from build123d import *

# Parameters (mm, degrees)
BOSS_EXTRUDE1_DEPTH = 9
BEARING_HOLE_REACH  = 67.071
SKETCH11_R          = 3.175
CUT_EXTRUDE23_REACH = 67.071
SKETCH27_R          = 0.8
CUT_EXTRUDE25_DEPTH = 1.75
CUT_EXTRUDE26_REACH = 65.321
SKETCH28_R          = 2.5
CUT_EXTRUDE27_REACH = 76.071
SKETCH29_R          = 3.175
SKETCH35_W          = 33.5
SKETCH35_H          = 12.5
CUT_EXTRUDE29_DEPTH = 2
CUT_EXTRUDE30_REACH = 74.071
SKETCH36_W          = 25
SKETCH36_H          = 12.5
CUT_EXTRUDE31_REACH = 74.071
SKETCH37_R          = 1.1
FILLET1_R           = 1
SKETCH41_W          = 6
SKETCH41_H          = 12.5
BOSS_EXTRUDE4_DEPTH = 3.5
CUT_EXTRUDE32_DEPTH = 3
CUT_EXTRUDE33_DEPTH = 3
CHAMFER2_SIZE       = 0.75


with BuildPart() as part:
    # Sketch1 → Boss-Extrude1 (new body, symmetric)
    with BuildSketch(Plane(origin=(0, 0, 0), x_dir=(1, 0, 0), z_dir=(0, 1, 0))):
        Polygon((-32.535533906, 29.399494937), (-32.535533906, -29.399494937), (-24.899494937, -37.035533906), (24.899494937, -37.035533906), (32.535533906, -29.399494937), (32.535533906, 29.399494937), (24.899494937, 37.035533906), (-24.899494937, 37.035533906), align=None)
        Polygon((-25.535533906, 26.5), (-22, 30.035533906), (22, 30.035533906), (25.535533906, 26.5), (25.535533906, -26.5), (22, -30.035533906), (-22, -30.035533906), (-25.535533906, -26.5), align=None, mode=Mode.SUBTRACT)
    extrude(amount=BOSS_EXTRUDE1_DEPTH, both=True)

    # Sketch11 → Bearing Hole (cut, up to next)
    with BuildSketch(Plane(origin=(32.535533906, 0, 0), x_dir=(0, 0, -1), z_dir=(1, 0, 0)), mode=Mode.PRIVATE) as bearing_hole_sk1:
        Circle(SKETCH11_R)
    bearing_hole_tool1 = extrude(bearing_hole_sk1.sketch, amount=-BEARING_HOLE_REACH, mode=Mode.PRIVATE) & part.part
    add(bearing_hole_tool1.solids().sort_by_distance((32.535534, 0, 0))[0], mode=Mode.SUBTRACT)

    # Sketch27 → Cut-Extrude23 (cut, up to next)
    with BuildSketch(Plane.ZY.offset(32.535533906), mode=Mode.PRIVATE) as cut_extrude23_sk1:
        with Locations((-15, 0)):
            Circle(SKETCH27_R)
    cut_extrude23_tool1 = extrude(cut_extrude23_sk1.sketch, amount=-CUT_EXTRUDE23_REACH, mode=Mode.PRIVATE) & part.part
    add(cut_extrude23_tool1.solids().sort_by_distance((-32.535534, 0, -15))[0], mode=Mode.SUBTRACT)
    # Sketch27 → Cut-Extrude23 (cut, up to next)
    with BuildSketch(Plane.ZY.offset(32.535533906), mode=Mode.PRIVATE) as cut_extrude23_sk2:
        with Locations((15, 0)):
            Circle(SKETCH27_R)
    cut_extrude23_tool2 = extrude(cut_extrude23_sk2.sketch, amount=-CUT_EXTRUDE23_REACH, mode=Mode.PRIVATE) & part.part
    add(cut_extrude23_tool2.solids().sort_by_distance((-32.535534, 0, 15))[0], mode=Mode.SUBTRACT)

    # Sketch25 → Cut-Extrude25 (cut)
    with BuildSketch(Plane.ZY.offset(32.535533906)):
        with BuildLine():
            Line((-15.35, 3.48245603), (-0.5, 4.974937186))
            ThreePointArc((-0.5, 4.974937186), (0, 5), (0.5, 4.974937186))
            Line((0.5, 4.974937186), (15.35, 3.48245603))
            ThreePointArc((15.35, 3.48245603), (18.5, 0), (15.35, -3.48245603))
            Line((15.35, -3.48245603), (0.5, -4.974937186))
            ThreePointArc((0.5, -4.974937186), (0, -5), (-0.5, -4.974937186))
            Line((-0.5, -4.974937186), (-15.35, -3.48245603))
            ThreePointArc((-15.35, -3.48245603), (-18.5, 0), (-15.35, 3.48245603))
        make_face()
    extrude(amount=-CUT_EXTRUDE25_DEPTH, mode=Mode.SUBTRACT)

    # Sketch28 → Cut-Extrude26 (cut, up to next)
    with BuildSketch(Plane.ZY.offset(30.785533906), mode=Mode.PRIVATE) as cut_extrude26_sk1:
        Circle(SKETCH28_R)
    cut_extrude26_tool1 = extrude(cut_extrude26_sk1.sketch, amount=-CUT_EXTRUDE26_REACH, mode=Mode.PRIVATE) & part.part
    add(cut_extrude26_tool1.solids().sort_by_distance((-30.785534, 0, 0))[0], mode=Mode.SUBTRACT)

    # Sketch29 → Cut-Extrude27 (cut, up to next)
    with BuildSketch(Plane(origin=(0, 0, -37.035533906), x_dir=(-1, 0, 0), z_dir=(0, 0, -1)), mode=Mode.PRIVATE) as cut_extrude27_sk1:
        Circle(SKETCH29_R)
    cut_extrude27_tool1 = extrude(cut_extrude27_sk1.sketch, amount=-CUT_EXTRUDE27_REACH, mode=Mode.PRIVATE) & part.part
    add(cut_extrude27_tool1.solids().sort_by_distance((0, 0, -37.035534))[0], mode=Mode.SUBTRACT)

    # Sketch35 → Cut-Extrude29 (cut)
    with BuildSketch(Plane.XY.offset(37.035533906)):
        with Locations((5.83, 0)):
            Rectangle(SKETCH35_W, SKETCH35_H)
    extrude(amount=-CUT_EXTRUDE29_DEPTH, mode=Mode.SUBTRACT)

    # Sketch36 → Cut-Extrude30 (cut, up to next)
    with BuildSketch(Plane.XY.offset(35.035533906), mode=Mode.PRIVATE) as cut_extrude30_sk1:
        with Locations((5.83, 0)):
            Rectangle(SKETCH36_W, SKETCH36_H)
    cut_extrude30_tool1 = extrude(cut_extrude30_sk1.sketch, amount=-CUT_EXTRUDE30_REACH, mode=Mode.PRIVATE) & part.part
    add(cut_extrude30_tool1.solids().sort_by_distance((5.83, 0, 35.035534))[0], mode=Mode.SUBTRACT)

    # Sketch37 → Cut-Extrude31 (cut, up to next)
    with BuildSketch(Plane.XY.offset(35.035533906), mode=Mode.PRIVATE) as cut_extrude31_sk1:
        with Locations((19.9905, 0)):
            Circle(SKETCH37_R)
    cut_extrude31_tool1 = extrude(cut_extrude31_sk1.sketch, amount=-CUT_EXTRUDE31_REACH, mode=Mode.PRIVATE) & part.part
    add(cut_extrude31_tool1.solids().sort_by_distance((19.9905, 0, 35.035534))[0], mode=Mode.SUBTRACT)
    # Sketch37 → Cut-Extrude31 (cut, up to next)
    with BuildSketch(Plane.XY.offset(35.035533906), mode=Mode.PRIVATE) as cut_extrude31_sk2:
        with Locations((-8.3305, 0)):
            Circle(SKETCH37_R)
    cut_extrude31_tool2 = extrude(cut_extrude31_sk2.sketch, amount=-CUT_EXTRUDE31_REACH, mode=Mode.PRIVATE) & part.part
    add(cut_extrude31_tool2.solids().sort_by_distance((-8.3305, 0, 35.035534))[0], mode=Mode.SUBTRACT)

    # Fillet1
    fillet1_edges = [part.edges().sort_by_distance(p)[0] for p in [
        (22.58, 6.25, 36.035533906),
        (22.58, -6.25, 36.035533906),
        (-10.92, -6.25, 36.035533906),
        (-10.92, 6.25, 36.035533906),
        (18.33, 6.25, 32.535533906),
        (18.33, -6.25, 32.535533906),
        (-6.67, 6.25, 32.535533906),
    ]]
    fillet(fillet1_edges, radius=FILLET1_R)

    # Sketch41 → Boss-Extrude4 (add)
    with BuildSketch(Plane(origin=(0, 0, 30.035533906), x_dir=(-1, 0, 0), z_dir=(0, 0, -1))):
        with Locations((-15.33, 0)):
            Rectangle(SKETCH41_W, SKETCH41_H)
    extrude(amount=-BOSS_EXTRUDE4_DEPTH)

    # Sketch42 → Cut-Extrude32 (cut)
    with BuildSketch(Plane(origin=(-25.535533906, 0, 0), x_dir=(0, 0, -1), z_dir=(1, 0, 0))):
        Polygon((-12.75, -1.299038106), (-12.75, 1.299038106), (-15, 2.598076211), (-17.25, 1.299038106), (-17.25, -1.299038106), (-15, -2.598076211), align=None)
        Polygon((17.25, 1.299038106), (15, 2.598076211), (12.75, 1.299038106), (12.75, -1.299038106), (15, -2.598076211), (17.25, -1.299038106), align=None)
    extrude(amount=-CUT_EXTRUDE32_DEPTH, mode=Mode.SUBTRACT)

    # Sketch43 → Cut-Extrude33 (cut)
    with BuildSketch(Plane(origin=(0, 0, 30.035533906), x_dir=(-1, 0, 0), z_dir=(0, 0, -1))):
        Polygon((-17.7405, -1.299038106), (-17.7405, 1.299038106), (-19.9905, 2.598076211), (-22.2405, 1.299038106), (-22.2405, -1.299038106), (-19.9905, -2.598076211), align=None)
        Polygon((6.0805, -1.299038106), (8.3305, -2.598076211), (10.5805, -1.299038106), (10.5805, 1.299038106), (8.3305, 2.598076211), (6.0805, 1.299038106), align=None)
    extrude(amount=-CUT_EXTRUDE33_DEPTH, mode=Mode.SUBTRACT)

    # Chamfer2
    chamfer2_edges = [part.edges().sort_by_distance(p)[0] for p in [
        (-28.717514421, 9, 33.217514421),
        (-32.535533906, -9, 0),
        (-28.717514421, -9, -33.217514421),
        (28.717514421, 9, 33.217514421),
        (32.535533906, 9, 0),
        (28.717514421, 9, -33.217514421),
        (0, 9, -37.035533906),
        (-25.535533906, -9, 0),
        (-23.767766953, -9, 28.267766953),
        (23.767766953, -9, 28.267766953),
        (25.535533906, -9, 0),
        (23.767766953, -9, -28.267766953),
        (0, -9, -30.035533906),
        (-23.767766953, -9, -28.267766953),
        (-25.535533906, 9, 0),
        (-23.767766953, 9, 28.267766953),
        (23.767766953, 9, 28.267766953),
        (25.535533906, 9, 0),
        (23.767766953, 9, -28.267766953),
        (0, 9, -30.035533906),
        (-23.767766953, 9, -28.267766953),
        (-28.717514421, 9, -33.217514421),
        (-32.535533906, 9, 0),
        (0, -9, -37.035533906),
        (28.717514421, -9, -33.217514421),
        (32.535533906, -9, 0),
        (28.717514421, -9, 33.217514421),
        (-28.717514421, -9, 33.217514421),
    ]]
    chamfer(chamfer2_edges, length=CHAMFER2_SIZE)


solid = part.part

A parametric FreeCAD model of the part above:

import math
import FreeCAD as App
import Part
import Sketcher

V = App.Vector
Q = App.Units.Quantity


def edges_at(feature, points):
    """Names of the edges that pass closest to the given points."""
    edges = feature.Shape.Edges
    near = lambda p: min(range(len(edges)), key=lambda i: edges[i].distToShape(Part.Vertex(*p))[0])
    return sorted({f"Edge{near(p) + 1}" for p in points})


def add_polygon(sketch, points):
    """Adds a closed chain of lines whose ends are joined by coincident constraints."""
    first, n = sketch.GeometryCount, len(points)
    for a, b in zip(points, points[1:] + points[:1]):
        sketch.addGeometry(Part.LineSegment(App.Vector(*a, 0), App.Vector(*b, 0)), False)
    for i in range(n):
        sketch.addConstraint(Sketcher.Constraint("Coincident", first + i, 2, first + (i + 1) % n, 1))

doc = App.newDocument("Part")
body = doc.addObject("PartDesign::Body", "Body")

# Sketch on XZ plane
sketch1 = body.newObject("Sketcher::SketchObject", "Sketch")
sketch1.AttachmentSupport = (doc.getObject("XZ_Plane"), [""])
sketch1.MapMode = "FlatFace"
add_polygon(sketch1, [(-33, -29), (-33, 29), (-25, 37), (25, 37), (33, 29), (33, -29), (25, -37), (-25, -37)])  # lines 0-7
add_polygon(sketch1, [(-26, 26), (-26, -26), (-22, -30), (22, -30), (26, -26), (26, 26), (22, 30), (-22, 30)])  # lines 8-15
sketch1.addConstraint([
    Sketcher.Constraint("Vertical", 0),
    Sketcher.Constraint("Horizontal", 2),
    Sketcher.Constraint("Vertical", 4),
    Sketcher.Constraint("Horizontal", 6),
    Sketcher.Constraint("Vertical", 8),
    Sketcher.Constraint("Horizontal", 10),
    Sketcher.Constraint("Vertical", 12),
    Sketcher.Constraint("Horizontal", 14),
    Sketcher.Constraint("Symmetric", 0, 2, 4, 2, -1, 1),
    Sketcher.Constraint("Symmetric", 1, 2, 5, 2, -1, 1),
    Sketcher.Constraint("Symmetric", 8, 2, 12, 2, -1, 1),
    Sketcher.Constraint("Symmetric", 9, 2, 13, 2, -1, 1),
    Sketcher.Constraint("Perpendicular", 1, 3),
    Sketcher.Constraint("Perpendicular", 5, 7),
    Sketcher.Constraint("Parallel", 7, 9),
    Sketcher.Constraint("Perpendicular", 9, 11),
    Sketcher.Constraint("Perpendicular", 13, 15),
    Sketcher.Constraint("Horizontal", 0, 2, 3, 2),
    Sketcher.Constraint("Horizontal", 4, 2, 7, 2),
    Sketcher.Constraint("Horizontal", 8, 2, 11, 2),
    Sketcher.Constraint("Horizontal", 12, 2, 15, 2),
    Sketcher.Constraint("Vertical", 2, 2, 5, 2),
    Sketcher.Constraint("DistanceX", 10, 1, 10, 2, 44.0),
    Sketcher.Constraint("DistanceY", 8, 2, 8, 1, 53.0),
    Sketcher.Constraint("Distance", 9, 5.0),
    Sketcher.Constraint("DistanceX", 7, 2, 8, 2, 7.0),
    Sketcher.Constraint("DistanceY", 6, 2, 9, 2, 7.0),
    Sketcher.Constraint("DistanceX", 2, 1, 2, 2, 49.79899),
])
pad1 = body.newObject("PartDesign::Pad", "Pad")
pad1.Profile = sketch1
pad1.Length = 18
pad1.Midplane = True

# Sketch on YZ plane
sketch2 = body.newObject("Sketcher::SketchObject", "Sketch001")
sketch2.AttachmentSupport = (doc.getObject("YZ_Plane"), [""])
sketch2.MapMode = "FlatFace"
sketch2.AttachmentOffset = App.Placement(V(0, 0, 32.535534), App.Rotation())
sketch2.addGeometry(Part.Circle(V(0, 0, 0), V(0, 0, 1), 3.2), False)
sketch2.addConstraint([
    Sketcher.Constraint("Coincident", 0, 3, -1, 1),
    Sketcher.Constraint("Diameter", 0, 6.35),
])
pocket1 = body.newObject("PartDesign::Pocket", "Pocket")
pocket1.Profile = sketch2
pocket1.Type = "UpToFirst"

# Sketch on YZ plane
sketch3 = body.newObject("Sketcher::SketchObject", "Sketch002")
sketch3.AttachmentSupport = (doc.getObject("YZ_Plane"), [""])
sketch3.MapMode = "FlatFace"
sketch3.AttachmentOffset = App.Placement(V(0, 0, -32.535534), App.Rotation())
sketch3.addGeometry(Part.Circle(V(0, -15, 0), V(0, 0, 1), 0.8), False)
sketch3.addConstraint([
    Sketcher.Constraint("PointOnObject", 0, 3, -2),
    Sketcher.Constraint("Diameter", 0, 1.6),
    Sketcher.Constraint("DistanceY", 0, 3, -1, 1, 15.0),
])
pocket2 = body.newObject("PartDesign::Pocket", "Pocket001")
pocket2.Profile = sketch3
pocket2.Type = "UpToFirst"
pocket2.Reversed = True

# Sketch on YZ plane
sketch4 = body.newObject("Sketcher::SketchObject", "Sketch003")
sketch4.AttachmentSupport = (doc.getObject("YZ_Plane"), [""])
sketch4.MapMode = "FlatFace"
sketch4.AttachmentOffset = App.Placement(V(0, 0, -32.535534), App.Rotation())
sketch4.addGeometry(Part.Circle(V(0, 15, 0), V(0, 0, 1), 0.8), False)
sketch4.addConstraint([
    Sketcher.Constraint("PointOnObject", 0, 3, -2),
    Sketcher.Constraint("Diameter", 0, 1.6),
    Sketcher.Constraint("DistanceY", -1, 1, 0, 3, 15.0),
])
pocket3 = body.newObject("PartDesign::Pocket", "Pocket002")
pocket3.Profile = sketch4
pocket3.Type = "UpToFirst"
pocket3.Reversed = True

# Sketch on YZ plane
sketch5 = body.newObject("Sketcher::SketchObject", "Sketch004")
sketch5.AttachmentSupport = (doc.getObject("YZ_Plane"), [""])
sketch5.MapMode = "FlatFace"
sketch5.AttachmentOffset = App.Placement(V(0, 0, -32.535534), App.Rotation())
sketch5.addGeometry([
    Part.LineSegment(V(5, -0.5, 0), V(3.5, -15.3, 0)),  # 0
    Part.ArcOfCircle(Part.Circle(V(0, -15, 0), V(0, 0, 1), 3.5), math.radians(-174), math.radians(-6)),  # 1
    Part.LineSegment(V(-3.5, -15.3, 0), V(-5, -0.5, 0)),  # 2
    Part.ArcOfCircle(Part.Circle(V(0, 0, 0), V(0, 0, 1), 5), math.radians(174.26), math.radians(185.74)),  # 3
    Part.LineSegment(V(-5, 0.5, 0), V(-3.5, 15.3, 0)),  # 4
    Part.ArcOfCircle(Part.Circle(V(0, 15, 0), V(0, 0, 1), 3.5), math.radians(6), math.radians(174)),  # 5
    Part.LineSegment(V(3.5, 15.3, 0), V(5, 0.5, 0)),  # 6
    Part.ArcOfCircle(Part.Circle(V(0, 0, 0), V(0, 0, 1), 5), math.radians(-5.74), math.radians(5.74)),  # 7
], False)
sketch5.addConstraint([
    Sketcher.Constraint("Tangent", 0, 2, 1, 2),
    Sketcher.Constraint("Tangent", 1, 1, 2, 1),
    Sketcher.Constraint("Tangent", 2, 2, 3, 2),
    Sketcher.Constraint("Tangent", 3, 1, 4, 1),
    Sketcher.Constraint("Tangent", 4, 2, 5, 2),
    Sketcher.Constraint("Tangent", 5, 1, 6, 1),
    Sketcher.Constraint("Tangent", 6, 2, 7, 2),
    Sketcher.Constraint("Tangent", 7, 1, 0, 1),
    Sketcher.Constraint("Coincident", 3, 3, -1, 1),
    Sketcher.Constraint("Coincident", 7, 3, -1, 1),
    Sketcher.Constraint("Equal", 1, 5),
    Sketcher.Constraint("Equal", 3, 7),
    Sketcher.Constraint("Symmetric", 1, 3, 5, 3, -1, 1),
    Sketcher.Constraint("PointOnObject", 1, 3, -2),
    Sketcher.Constraint("Radius", 3, 5.0),
    Sketcher.Constraint("Radius", 1, 3.5),
    Sketcher.Constraint("DistanceY", 1, 3, -1, 1, 15.0),
])
pocket4 = body.newObject("PartDesign::Pocket", "Pocket003")
pocket4.Profile = sketch5
pocket4.Length = 1.75
pocket4.Reversed = True

# Sketch on YZ plane
sketch6 = body.newObject("Sketcher::SketchObject", "Sketch005")
sketch6.AttachmentSupport = (doc.getObject("YZ_Plane"), [""])
sketch6.MapMode = "FlatFace"
sketch6.AttachmentOffset = App.Placement(V(0, 0, -30.785534), App.Rotation())
sketch6.addGeometry(Part.Circle(V(0, 0, 0), V(0, 0, 1), 2.5), False)
sketch6.addConstraint([
    Sketcher.Constraint("Coincident", 0, 3, -1, 1),
    Sketcher.Constraint("Diameter", 0, 5.0),
])
pocket5 = body.newObject("PartDesign::Pocket", "Pocket004")
pocket5.Profile = sketch6
pocket5.Type = "UpToFirst"
pocket5.Reversed = True

# Sketch on XY plane
sketch7 = body.newObject("Sketcher::SketchObject", "Sketch006")
sketch7.AttachmentSupport = (doc.getObject("XY_Plane"), [""])
sketch7.MapMode = "FlatFace"
sketch7.AttachmentOffset = App.Placement(V(0, 0, -37.035534), App.Rotation())
sketch7.addGeometry(Part.Circle(V(0, 0, 0), V(0, 0, 1), 3.2), False)
sketch7.addConstraint([
    Sketcher.Constraint("Coincident", 0, 3, -1, 1),
    Sketcher.Constraint("Diameter", 0, 6.35),
])
pocket6 = body.newObject("PartDesign::Pocket", "Pocket005")
pocket6.Profile = sketch7
pocket6.Type = "UpToFirst"
pocket6.Reversed = True

# Sketch on XY plane
sketch8 = body.newObject("Sketcher::SketchObject", "Sketch007")
sketch8.AttachmentSupport = (doc.getObject("XY_Plane"), [""])
sketch8.MapMode = "FlatFace"
sketch8.AttachmentOffset = App.Placement(V(0, 0, 37.035534), App.Rotation())
add_polygon(sketch8, [(-11, 6), (-11, -6), (23, -6), (23, 6)])  # lines 0-3
sketch8.addConstraint([
    Sketcher.Constraint("Vertical", 0),
    Sketcher.Constraint("Horizontal", 1),
    Sketcher.Constraint("Vertical", 2),
    Sketcher.Constraint("Horizontal", 3),
    Sketcher.Constraint("DistanceX", 1, 1, 1, 2, 33.5),
    Sketcher.Constraint("DistanceY", 0, 2, 0, 1, 12.5),
    Sketcher.Constraint("DistanceX", 0, 2, -1, 1, 10.92),
    Sketcher.Constraint("DistanceY", 0, 2, -1, 1, 6.25),
])
pocket7 = body.newObject("PartDesign::Pocket", "Pocket006")
pocket7.Profile = sketch8
pocket7.Length = 2

# Sketch on XY plane
sketch9 = body.newObject("Sketcher::SketchObject", "Sketch008")
sketch9.AttachmentSupport = (doc.getObject("XY_Plane"), [""])
sketch9.MapMode = "FlatFace"
sketch9.AttachmentOffset = App.Placement(V(0, 0, 35.035534), App.Rotation())
add_polygon(sketch9, [(-7, 6), (-7, -6), (18, -6), (18, 6)])  # lines 0-3
sketch9.addConstraint([
    Sketcher.Constraint("Vertical", 0),
    Sketcher.Constraint("Horizontal", 1),
    Sketcher.Constraint("Vertical", 2),
    Sketcher.Constraint("Horizontal", 3),
    Sketcher.Constraint("DistanceX", 1, 1, 1, 2, 25.0),
    Sketcher.Constraint("DistanceY", 0, 2, 0, 1, 12.5),
    Sketcher.Constraint("DistanceX", 0, 2, -1, 1, 6.67),
    Sketcher.Constraint("DistanceY", 0, 2, -1, 1, 6.25),
])
pocket8 = body.newObject("PartDesign::Pocket", "Pocket007")
pocket8.Profile = sketch9
pocket8.Type = "UpToFirst"

# Sketch on XY plane
sketch10 = body.newObject("Sketcher::SketchObject", "Sketch009")
sketch10.AttachmentSupport = (doc.getObject("XY_Plane"), [""])
sketch10.MapMode = "FlatFace"
sketch10.AttachmentOffset = App.Placement(V(0, 0, 35.035534), App.Rotation())
sketch10.addGeometry(Part.Circle(V(20, 0, 0), V(0, 0, 1), 1.1), False)
sketch10.addConstraint([
    Sketcher.Constraint("PointOnObject", 0, 3, -1),
    Sketcher.Constraint("Diameter", 0, 2.2),
    Sketcher.Constraint("DistanceX", -1, 1, 0, 3, 19.9905),
])
pocket9 = body.newObject("PartDesign::Pocket", "Pocket008")
pocket9.Profile = sketch10
pocket9.Type = "UpToFirst"

# Sketch on XY plane
sketch11 = body.newObject("Sketcher::SketchObject", "Sketch010")
sketch11.AttachmentSupport = (doc.getObject("XY_Plane"), [""])
sketch11.MapMode = "FlatFace"
sketch11.AttachmentOffset = App.Placement(V(0, 0, 35.035534), App.Rotation())
sketch11.addGeometry(Part.Circle(V(-8.3, 0, 0), V(0, 0, 1), 1.1), False)
sketch11.addConstraint([
    Sketcher.Constraint("PointOnObject", 0, 3, -1),
    Sketcher.Constraint("Diameter", 0, 2.2),
    Sketcher.Constraint("DistanceX", 0, 3, -1, 1, 8.3305),
])
pocket10 = body.newObject("PartDesign::Pocket", "Pocket009")
pocket10.Profile = sketch11
pocket10.Type = "UpToFirst"
doc.recompute()

fillet = body.newObject("PartDesign::Fillet", "Fillet")
fillet.Base = (pocket10, edges_at(pocket10, [
    (22.58, 6.25, 36.036),
    (22.58, -6.25, 36.036),
    (-10.92, -6.25, 36.036),
    (-10.92, 6.25, 36.036),
    (18.33, 6.25, 32.536),
    (18.33, -6.25, 32.536),
    (-6.67, 6.25, 32.536),
]))
fillet.Radius = 1

# Sketch on XY plane
sketch12 = body.newObject("Sketcher::SketchObject", "Sketch011")
sketch12.AttachmentSupport = (doc.getObject("XY_Plane"), [""])
sketch12.MapMode = "FlatFace"
sketch12.AttachmentOffset = App.Placement(V(0, 0, 30.035534), App.Rotation())
add_polygon(sketch12, [(18, 6), (18, -6), (12, -6), (12, 6)])  # lines 0-3
sketch12.addConstraint([
    Sketcher.Constraint("Vertical", 0),
    Sketcher.Constraint("Horizontal", 1),
    Sketcher.Constraint("Vertical", 2),
    Sketcher.Constraint("Horizontal", 3),
    Sketcher.Constraint("DistanceX", 1, 2, 1, 1, 6.0),
    Sketcher.Constraint("DistanceY", 0, 2, 0, 1, 12.5),
    Sketcher.Constraint("DistanceX", -1, 1, 0, 2, 18.33),
    Sketcher.Constraint("DistanceY", 0, 2, -1, 1, 6.25),
])
pad2 = body.newObject("PartDesign::Pad", "Pad001")
pad2.Profile = sketch12
pad2.Length = 3.5

# Sketch on YZ plane
sketch13 = body.newObject("Sketcher::SketchObject", "Sketch012")
sketch13.AttachmentSupport = (doc.getObject("YZ_Plane"), [""])
sketch13.MapMode = "FlatFace"
sketch13.AttachmentOffset = App.Placement(V(0, 0, -25.535534), App.Rotation())
add_polygon(sketch13, [(-1.3, 12.8), (1.3, 12.8), (2.6, 15), (1.3, 17.2), (-1.3, 17.2), (-2.6, 15)])  # lines 0-5
add_polygon(sketch13, [(1.3, -17.2), (2.6, -15), (1.3, -12.8), (-1.3, -12.8), (-2.6, -15), (-1.3, -17.2)])  # lines 6-11
sketch13.addConstraint([
    Sketcher.Constraint("Horizontal", 0),
    Sketcher.Constraint("Horizontal", 3),
    Sketcher.Constraint("Horizontal", 8),
    Sketcher.Constraint("Horizontal", 11),
    Sketcher.Constraint("Symmetric", 4, 2, 6, 2, -1, 1),
    Sketcher.Constraint("Symmetric", 5, 2, 7, 2, -1, 1),
    Sketcher.Constraint("Symmetric", 1, 2, 9, 2, -1, 1),
    Sketcher.Constraint("Symmetric", 2, 2, 10, 2, -1, 1),
    Sketcher.Constraint("Symmetric", 1, 2, 4, 2, -2),
    Sketcher.Constraint("Parallel", 1, 4),
    Sketcher.Constraint("Parallel", 2, 5),
    Sketcher.Constraint("Parallel", 4, 6),
    Sketcher.Constraint("Parallel", 6, 9),
    Sketcher.Constraint("Vertical", 0, 2, 2, 2),
    Sketcher.Constraint("Vertical", 3, 2, 5, 2),
    Sketcher.Constraint("Angle", 1, Q("60 deg")),
    Sketcher.Constraint("DistanceY", -1, 1, 1, 2, 15.0),
    Sketcher.Constraint("DistanceY", 0, 2, 2, 2, 4.5),
    Sketcher.Constraint("DistanceX", 0, 1, 0, 2, 2.598076),
])
pocket11 = body.newObject("PartDesign::Pocket", "Pocket010")
pocket11.Profile = sketch13
pocket11.Length = 3

# Sketch on XY plane
sketch14 = body.newObject("Sketcher::SketchObject", "Sketch013")
sketch14.AttachmentSupport = (doc.getObject("XY_Plane"), [""])
sketch14.MapMode = "FlatFace"
sketch14.AttachmentOffset = App.Placement(V(0, 0, 30.035534), App.Rotation())
add_polygon(sketch14, [(17.7, -1.3), (17.7, 1.3), (20, 2.6), (22.2, 1.3), (22.2, -1.3), (20, -2.6)])  # lines 0-5
add_polygon(sketch14, [(-6.1, -1.3), (-8.3, -2.6), (-10.6, -1.3), (-10.6, 1.3), (-8.3, 2.6), (-6.1, 1.3)])  # lines 6-11
sketch14.addConstraint([
    Sketcher.Constraint("Vertical", 0),
    Sketcher.Constraint("Vertical", 3),
    Sketcher.Constraint("Vertical", 8),
    Sketcher.Constraint("Vertical", 11),
    Sketcher.Constraint("Symmetric", 1, 2, 4, 2, -1),
    Sketcher.Constraint("Symmetric", 6, 2, 9, 2, -1),
    Sketcher.Constraint("Parallel", 1, 4),
    Sketcher.Constraint("Parallel", 2, 5),
    Sketcher.Constraint("Parallel", 4, 6),
    Sketcher.Constraint("Parallel", 5, 7),
    Sketcher.Constraint("Parallel", 6, 9),
    Sketcher.Constraint("Parallel", 7, 10),
    Sketcher.Constraint("Horizontal", 0, 2, 2, 2),
    Sketcher.Constraint("Horizontal", 3, 2, 5, 2),
    Sketcher.Constraint("Horizontal", 4, 2, 6, 2),
    Sketcher.Constraint("Horizontal", 5, 2, 7, 2),
    Sketcher.Constraint("Horizontal", 8, 2, 10, 2),
    Sketcher.Constraint("Angle", 1, Q("30 deg")),
    Sketcher.Constraint("DistanceX", 0, 2, 2, 2, 4.5),
    Sketcher.Constraint("DistanceX", 6, 2, 5, 2, 26.071),
    Sketcher.Constraint("DistanceX", -1, 1, 0, 2, 17.7405),
    Sketcher.Constraint("DistanceY", 0, 1, 0, 2, 2.598076),
])
pocket12 = body.newObject("PartDesign::Pocket", "Pocket011")
pocket12.Profile = sketch14
pocket12.Length = 3
pocket12.Reversed = True
doc.recompute()

chamfer = body.newObject("PartDesign::Chamfer", "Chamfer")
chamfer.Base = (pocket12, edges_at(pocket12, [
    (-28.718, 9, 33.218),
    (-32.536, -9, 0),
    (-28.718, -9, -33.218),
    (28.718, 9, 33.218),
    (32.536, 9, 0),
    (28.718, 9, -33.218),
    (0, 9, -37.036),
    (-25.536, -9, 0),
    (-23.768, -9, 28.268),
    (23.768, -9, 28.268),
    (25.536, -9, 0),
    (23.768, -9, -28.268),
    (0, -9, -30.036),
    (-23.768, -9, -28.268),
    (-25.536, 9, 0),
    (-23.768, 9, 28.268),
    (23.768, 9, 28.268),
    (25.536, 9, 0),
    (23.768, 9, -28.268),
    (0, 9, -30.036),
    (-23.768, 9, -28.268),
    (-28.718, 9, -33.218),
    (-32.536, 9, 0),
    (0, -9, -37.036),
    (28.718, -9, -33.218),
    (32.536, -9, 0),
    (28.718, -9, 33.218),
    (-28.718, -9, 33.218),
]))
chamfer.Size = 0.75

doc.recompute()
